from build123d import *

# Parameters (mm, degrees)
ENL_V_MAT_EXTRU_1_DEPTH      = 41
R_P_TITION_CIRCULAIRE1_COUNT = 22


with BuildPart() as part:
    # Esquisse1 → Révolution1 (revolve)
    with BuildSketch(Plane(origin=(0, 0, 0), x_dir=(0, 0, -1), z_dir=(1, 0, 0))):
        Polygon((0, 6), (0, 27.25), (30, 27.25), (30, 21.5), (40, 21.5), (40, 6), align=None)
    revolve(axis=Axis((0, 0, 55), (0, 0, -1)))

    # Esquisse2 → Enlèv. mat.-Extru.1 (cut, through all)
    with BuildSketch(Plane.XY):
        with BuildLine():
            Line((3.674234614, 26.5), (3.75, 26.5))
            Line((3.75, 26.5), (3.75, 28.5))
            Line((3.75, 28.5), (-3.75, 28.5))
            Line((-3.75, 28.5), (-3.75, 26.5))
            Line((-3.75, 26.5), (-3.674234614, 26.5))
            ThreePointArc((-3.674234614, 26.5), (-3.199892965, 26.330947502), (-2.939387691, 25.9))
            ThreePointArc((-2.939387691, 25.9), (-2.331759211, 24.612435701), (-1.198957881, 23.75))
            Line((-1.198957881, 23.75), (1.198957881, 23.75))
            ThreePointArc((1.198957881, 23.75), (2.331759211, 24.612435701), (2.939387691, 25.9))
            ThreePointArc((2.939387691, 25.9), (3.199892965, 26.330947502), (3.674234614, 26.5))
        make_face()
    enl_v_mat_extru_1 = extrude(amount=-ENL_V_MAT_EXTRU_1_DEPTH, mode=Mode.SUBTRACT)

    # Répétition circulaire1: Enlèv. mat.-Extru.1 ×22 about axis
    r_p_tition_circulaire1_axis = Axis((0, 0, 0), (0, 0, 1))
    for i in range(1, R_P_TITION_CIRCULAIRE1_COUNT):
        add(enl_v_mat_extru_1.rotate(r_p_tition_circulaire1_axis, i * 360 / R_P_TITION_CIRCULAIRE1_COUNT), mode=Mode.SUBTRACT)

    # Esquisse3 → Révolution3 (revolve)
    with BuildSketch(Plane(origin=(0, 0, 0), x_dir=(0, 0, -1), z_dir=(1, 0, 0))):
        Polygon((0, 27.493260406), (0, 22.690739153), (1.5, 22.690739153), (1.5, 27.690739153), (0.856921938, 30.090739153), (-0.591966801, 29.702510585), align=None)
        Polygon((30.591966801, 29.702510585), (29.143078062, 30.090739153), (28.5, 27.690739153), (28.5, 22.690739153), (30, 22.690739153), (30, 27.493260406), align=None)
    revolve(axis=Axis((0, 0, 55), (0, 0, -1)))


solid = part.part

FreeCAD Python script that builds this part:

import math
import FreeCAD as App
import Part
import Sketcher

V = App.Vector
Q = App.Units.Quantity


def add_polygon(sketch, points):
    """Adds a closed chain of lines whose ends are joined by coincident constraints."""
    first, n = sketch.GeometryCount, len(points)
    for a, b in zip(points, points[1:] + points[:1]):
        sketch.addGeometry(Part.LineSegment(App.Vector(*a, 0), App.Vector(*b, 0)), False)
    for i in range(n):
        sketch.addConstraint(Sketcher.Constraint("Coincident", first + i, 2, first + (i + 1) % n, 1))

doc = App.newDocument("Part")
body = doc.addObject("PartDesign::Body", "Body")

sketch1 = body.newObject("Sketcher::SketchObject", "Sketch")
sketch1.AttachmentSupport = (doc.getObject("YZ_Plane"), [""])
sketch1.MapMode = "FlatFace"
add_polygon(sketch1, [(27, 0), (6, 0), (6, -40), (22, -40), (22, -30), (27, -30)])
sketch1.addConstraint([
    Sketcher.Constraint("Horizontal", 0),
    Sketcher.Constraint("Vertical", 1),
    Sketcher.Constraint("Horizontal", 2),
    Sketcher.Constraint("Vertical", 3),
    Sketcher.Constraint("Horizontal", 4),
    Sketcher.Constraint("Vertical", 5),
    Sketcher.Constraint("PointOnObject", 0, 2, -1),
    Sketcher.Constraint("DistanceY", 1, 2, 1, 1, 40.0),
    Sketcher.Constraint("DistanceY", 3, 1, 3, 2, 10.0),
    Sketcher.Constraint("DistanceX", 2, 1, 2, 2, 15.5),
    Sketcher.Constraint("DistanceX", -1, 1, 0, 2, 6.0),
    Sketcher.Constraint("DistanceX", 0, 2, 0, 1, 21.25),
])
revolution = body.newObject("PartDesign::Revolution", "Revolution")
revolution.Profile = sketch1
revolution.ReferenceAxis = (sketch1, ["V_Axis"])
revolution.Angle = 360

sketch2 = body.newObject("Sketcher::SketchObject", "Sketch001")
sketch2.AttachmentSupport = (doc.getObject("XY_Plane"), [""])
sketch2.MapMode = "FlatFace"
sketch2.addGeometry([
    Part.LineSegment(V(3.67, 26.5, 0), V(3.75, 26.5, 0)),
    Part.LineSegment(V(3.75, 26.5, 0), V(3.75, 28.5, 0)),
    Part.LineSegment(V(3.75, 28.5, 0), V(-3.75, 28.5, 0)),
    Part.LineSegment(V(-3.75, 28.5, 0), V(-3.75, 26.5, 0)),
    Part.LineSegment(V(-3.75, 26.5, 0), V(-3.67, 26.5, 0)),
    Part.ArcOfCircle(Part.Circle(V(-3.67, 25.75, 0), V(0, 0, 1), 0.75), math.radians(12), math.radians(90)),
    Part.ArcOfCircle(Part.Circle(V(0, 26.5, 0), V(0, 0, 1), 3), math.radians(-168), math.radians(-114)),
    Part.LineSegment(V(-1.2, 23.75, 0), V(1.2, 23.75, 0)),
    Part.ArcOfCircle(Part.Circle(V(0, 26.5, 0), V(0, 0, 1), 3), math.radians(-66), math.radians(-12)),
    Part.ArcOfCircle(Part.Circle(V(3.67, 25.75, 0), V(0, 0, 1), 0.75), math.radians(90), math.radians(168)),
], False)
sketch2.addConstraint([
    Sketcher.Constraint("Coincident", 0, 2, 1, 1),
    Sketcher.Constraint("Coincident", 1, 2, 2, 1),
    Sketcher.Constraint("Coincident", 2, 2, 3, 1),
    Sketcher.Constraint("Coincident", 3, 2, 4, 1),
    Sketcher.Constraint("Tangent", 4, 2, 5, 2),
    Sketcher.Constraint("Tangent", 5, 1, 6, 1),
    Sketcher.Constraint("Coincident", 6, 2, 7, 1),
    Sketcher.Constraint("Coincident", 7, 2, 8, 1),
    Sketcher.Constraint("Tangent", 8, 2, 9, 2),
    Sketcher.Constraint("Tangent", 9, 1, 0, 1),
    Sketcher.Constraint("Horizontal", 0),
    Sketcher.Constraint("Vertical", 1),
    Sketcher.Constraint("Horizontal", 2),
    Sketcher.Constraint("Vertical", 3),
    Sketcher.Constraint("Horizontal", 4),
    Sketcher.Constraint("Horizontal", 7),
    Sketcher.Constraint("Coincident", 8, 3, 6, 3),
    Sketcher.Constraint("Equal", 6, 8),
    Sketcher.Constraint("Equal", 5, 9),
    Sketcher.Constraint("Symmetric", 5, 3, 9, 3, -2),
    Sketcher.Constraint("Horizontal", 8, 3, 0, 2),
    Sketcher.Constraint("Equal", 0, 4),
    Sketcher.Constraint("Radius", 6, 3.0),
    Sketcher.Constraint("DistanceY", 1, 1, 1, 2, 2.0),
    Sketcher.Constraint("Radius", 5, 0.75),
    Sketcher.Constraint("DistanceX", 2, 2, 2, 1, 7.5),
    Sketcher.Constraint("DistanceY", 6, 2, 5, 3, 2.0),
    Sketcher.Constraint("DistanceY", -1, 1, 6, 3, 26.5),
])
pocket1 = body.newObject("PartDesign::Pocket", "Pocket")
pocket1.Profile = sketch2
pocket1.Type = "ThroughAll"
doc.recompute()

polarpattern = body.newObject("PartDesign::PolarPattern", "PolarPattern")
polarpattern.Originals = [pocket1]
polarpattern.Axis = (doc.getObject("Z_Axis"), [""])
polarpattern.Angle = 360
polarpattern.Occurrences = 22
body.Tip = polarpattern

sketch3 = body.newObject("Sketcher::SketchObject", "Sketch002")
sketch3.AttachmentSupport = (doc.getObject("YZ_Plane"), [""])
sketch3.MapMode = "FlatFace"
add_polygon(sketch3, [(27.5, 0), (22.7, 0), (22.7, -1.5), (27.7, -1.5), (30.1, -0.9), (29.7, 0.6)])
add_polygon(sketch3, [(29.7, -30.6), (30.1, -29.1), (27.7, -28.5), (22.7, -28.5), (22.7, -30), (27.5, -30)])
sketch3.addConstraint([
    Sketcher.Constraint("Horizontal", 0),
    Sketcher.Constraint("Vertical", 1),
    Sketcher.Constraint("Horizontal", 2),
    Sketcher.Constraint("Horizontal", 8),
    Sketcher.Constraint("Vertical", 9),
    Sketcher.Constraint("Horizontal", 10),
    Sketcher.Constraint("PointOnObject", 0, 2, -1),
    Sketcher.Constraint("Perpendicular", 3, 4),
    Sketcher.Constraint("Perpendicular", 4, 5),
    Sketcher.Constraint("Perpendicular", 6, 7),
    Sketcher.Constraint("Parallel", 7, 11),
    Sketcher.Constraint("Vertical", 3, 2, 6, 2),
    Sketcher.Constraint("Vertical", 2, 2, 7, 2),
    Sketcher.Constraint("Vertical", 1, 2, 8, 2),
    Sketcher.Constraint("Vertical", 5, 2, 10, 2),
    Sketcher.Constraint("Vertical", 4, 2, 11, 2),
    Sketcher.Constraint("Equal", 1, 9),
    Sketcher.Constraint("DistanceX", 2, 1, 2, 2, 5.0),
    Sketcher.Constraint("Angle", 3, Q("15 deg")),
    Sketcher.Constraint("DistanceY", 1, 2, 1, 1, 1.5),
    Sketcher.Constraint("DistanceY", 9, 2, -1, 1, 30.0),
    Sketcher.Constraint("Distance", 4, 1.5),
    Sketcher.Constraint("DistanceX", 2, 2, 3, 2, 2.4),
    Sketcher.Constraint("DistanceX", -1, 1, 0, 2, 22.690739),
])
revolution2 = body.newObject("PartDesign::Revolution", "Revolution001")
revolution2.Profile = sketch3
revolution2.ReferenceAxis = (sketch3, ["V_Axis"])
revolution2.Angle = 360

doc.recompute()
